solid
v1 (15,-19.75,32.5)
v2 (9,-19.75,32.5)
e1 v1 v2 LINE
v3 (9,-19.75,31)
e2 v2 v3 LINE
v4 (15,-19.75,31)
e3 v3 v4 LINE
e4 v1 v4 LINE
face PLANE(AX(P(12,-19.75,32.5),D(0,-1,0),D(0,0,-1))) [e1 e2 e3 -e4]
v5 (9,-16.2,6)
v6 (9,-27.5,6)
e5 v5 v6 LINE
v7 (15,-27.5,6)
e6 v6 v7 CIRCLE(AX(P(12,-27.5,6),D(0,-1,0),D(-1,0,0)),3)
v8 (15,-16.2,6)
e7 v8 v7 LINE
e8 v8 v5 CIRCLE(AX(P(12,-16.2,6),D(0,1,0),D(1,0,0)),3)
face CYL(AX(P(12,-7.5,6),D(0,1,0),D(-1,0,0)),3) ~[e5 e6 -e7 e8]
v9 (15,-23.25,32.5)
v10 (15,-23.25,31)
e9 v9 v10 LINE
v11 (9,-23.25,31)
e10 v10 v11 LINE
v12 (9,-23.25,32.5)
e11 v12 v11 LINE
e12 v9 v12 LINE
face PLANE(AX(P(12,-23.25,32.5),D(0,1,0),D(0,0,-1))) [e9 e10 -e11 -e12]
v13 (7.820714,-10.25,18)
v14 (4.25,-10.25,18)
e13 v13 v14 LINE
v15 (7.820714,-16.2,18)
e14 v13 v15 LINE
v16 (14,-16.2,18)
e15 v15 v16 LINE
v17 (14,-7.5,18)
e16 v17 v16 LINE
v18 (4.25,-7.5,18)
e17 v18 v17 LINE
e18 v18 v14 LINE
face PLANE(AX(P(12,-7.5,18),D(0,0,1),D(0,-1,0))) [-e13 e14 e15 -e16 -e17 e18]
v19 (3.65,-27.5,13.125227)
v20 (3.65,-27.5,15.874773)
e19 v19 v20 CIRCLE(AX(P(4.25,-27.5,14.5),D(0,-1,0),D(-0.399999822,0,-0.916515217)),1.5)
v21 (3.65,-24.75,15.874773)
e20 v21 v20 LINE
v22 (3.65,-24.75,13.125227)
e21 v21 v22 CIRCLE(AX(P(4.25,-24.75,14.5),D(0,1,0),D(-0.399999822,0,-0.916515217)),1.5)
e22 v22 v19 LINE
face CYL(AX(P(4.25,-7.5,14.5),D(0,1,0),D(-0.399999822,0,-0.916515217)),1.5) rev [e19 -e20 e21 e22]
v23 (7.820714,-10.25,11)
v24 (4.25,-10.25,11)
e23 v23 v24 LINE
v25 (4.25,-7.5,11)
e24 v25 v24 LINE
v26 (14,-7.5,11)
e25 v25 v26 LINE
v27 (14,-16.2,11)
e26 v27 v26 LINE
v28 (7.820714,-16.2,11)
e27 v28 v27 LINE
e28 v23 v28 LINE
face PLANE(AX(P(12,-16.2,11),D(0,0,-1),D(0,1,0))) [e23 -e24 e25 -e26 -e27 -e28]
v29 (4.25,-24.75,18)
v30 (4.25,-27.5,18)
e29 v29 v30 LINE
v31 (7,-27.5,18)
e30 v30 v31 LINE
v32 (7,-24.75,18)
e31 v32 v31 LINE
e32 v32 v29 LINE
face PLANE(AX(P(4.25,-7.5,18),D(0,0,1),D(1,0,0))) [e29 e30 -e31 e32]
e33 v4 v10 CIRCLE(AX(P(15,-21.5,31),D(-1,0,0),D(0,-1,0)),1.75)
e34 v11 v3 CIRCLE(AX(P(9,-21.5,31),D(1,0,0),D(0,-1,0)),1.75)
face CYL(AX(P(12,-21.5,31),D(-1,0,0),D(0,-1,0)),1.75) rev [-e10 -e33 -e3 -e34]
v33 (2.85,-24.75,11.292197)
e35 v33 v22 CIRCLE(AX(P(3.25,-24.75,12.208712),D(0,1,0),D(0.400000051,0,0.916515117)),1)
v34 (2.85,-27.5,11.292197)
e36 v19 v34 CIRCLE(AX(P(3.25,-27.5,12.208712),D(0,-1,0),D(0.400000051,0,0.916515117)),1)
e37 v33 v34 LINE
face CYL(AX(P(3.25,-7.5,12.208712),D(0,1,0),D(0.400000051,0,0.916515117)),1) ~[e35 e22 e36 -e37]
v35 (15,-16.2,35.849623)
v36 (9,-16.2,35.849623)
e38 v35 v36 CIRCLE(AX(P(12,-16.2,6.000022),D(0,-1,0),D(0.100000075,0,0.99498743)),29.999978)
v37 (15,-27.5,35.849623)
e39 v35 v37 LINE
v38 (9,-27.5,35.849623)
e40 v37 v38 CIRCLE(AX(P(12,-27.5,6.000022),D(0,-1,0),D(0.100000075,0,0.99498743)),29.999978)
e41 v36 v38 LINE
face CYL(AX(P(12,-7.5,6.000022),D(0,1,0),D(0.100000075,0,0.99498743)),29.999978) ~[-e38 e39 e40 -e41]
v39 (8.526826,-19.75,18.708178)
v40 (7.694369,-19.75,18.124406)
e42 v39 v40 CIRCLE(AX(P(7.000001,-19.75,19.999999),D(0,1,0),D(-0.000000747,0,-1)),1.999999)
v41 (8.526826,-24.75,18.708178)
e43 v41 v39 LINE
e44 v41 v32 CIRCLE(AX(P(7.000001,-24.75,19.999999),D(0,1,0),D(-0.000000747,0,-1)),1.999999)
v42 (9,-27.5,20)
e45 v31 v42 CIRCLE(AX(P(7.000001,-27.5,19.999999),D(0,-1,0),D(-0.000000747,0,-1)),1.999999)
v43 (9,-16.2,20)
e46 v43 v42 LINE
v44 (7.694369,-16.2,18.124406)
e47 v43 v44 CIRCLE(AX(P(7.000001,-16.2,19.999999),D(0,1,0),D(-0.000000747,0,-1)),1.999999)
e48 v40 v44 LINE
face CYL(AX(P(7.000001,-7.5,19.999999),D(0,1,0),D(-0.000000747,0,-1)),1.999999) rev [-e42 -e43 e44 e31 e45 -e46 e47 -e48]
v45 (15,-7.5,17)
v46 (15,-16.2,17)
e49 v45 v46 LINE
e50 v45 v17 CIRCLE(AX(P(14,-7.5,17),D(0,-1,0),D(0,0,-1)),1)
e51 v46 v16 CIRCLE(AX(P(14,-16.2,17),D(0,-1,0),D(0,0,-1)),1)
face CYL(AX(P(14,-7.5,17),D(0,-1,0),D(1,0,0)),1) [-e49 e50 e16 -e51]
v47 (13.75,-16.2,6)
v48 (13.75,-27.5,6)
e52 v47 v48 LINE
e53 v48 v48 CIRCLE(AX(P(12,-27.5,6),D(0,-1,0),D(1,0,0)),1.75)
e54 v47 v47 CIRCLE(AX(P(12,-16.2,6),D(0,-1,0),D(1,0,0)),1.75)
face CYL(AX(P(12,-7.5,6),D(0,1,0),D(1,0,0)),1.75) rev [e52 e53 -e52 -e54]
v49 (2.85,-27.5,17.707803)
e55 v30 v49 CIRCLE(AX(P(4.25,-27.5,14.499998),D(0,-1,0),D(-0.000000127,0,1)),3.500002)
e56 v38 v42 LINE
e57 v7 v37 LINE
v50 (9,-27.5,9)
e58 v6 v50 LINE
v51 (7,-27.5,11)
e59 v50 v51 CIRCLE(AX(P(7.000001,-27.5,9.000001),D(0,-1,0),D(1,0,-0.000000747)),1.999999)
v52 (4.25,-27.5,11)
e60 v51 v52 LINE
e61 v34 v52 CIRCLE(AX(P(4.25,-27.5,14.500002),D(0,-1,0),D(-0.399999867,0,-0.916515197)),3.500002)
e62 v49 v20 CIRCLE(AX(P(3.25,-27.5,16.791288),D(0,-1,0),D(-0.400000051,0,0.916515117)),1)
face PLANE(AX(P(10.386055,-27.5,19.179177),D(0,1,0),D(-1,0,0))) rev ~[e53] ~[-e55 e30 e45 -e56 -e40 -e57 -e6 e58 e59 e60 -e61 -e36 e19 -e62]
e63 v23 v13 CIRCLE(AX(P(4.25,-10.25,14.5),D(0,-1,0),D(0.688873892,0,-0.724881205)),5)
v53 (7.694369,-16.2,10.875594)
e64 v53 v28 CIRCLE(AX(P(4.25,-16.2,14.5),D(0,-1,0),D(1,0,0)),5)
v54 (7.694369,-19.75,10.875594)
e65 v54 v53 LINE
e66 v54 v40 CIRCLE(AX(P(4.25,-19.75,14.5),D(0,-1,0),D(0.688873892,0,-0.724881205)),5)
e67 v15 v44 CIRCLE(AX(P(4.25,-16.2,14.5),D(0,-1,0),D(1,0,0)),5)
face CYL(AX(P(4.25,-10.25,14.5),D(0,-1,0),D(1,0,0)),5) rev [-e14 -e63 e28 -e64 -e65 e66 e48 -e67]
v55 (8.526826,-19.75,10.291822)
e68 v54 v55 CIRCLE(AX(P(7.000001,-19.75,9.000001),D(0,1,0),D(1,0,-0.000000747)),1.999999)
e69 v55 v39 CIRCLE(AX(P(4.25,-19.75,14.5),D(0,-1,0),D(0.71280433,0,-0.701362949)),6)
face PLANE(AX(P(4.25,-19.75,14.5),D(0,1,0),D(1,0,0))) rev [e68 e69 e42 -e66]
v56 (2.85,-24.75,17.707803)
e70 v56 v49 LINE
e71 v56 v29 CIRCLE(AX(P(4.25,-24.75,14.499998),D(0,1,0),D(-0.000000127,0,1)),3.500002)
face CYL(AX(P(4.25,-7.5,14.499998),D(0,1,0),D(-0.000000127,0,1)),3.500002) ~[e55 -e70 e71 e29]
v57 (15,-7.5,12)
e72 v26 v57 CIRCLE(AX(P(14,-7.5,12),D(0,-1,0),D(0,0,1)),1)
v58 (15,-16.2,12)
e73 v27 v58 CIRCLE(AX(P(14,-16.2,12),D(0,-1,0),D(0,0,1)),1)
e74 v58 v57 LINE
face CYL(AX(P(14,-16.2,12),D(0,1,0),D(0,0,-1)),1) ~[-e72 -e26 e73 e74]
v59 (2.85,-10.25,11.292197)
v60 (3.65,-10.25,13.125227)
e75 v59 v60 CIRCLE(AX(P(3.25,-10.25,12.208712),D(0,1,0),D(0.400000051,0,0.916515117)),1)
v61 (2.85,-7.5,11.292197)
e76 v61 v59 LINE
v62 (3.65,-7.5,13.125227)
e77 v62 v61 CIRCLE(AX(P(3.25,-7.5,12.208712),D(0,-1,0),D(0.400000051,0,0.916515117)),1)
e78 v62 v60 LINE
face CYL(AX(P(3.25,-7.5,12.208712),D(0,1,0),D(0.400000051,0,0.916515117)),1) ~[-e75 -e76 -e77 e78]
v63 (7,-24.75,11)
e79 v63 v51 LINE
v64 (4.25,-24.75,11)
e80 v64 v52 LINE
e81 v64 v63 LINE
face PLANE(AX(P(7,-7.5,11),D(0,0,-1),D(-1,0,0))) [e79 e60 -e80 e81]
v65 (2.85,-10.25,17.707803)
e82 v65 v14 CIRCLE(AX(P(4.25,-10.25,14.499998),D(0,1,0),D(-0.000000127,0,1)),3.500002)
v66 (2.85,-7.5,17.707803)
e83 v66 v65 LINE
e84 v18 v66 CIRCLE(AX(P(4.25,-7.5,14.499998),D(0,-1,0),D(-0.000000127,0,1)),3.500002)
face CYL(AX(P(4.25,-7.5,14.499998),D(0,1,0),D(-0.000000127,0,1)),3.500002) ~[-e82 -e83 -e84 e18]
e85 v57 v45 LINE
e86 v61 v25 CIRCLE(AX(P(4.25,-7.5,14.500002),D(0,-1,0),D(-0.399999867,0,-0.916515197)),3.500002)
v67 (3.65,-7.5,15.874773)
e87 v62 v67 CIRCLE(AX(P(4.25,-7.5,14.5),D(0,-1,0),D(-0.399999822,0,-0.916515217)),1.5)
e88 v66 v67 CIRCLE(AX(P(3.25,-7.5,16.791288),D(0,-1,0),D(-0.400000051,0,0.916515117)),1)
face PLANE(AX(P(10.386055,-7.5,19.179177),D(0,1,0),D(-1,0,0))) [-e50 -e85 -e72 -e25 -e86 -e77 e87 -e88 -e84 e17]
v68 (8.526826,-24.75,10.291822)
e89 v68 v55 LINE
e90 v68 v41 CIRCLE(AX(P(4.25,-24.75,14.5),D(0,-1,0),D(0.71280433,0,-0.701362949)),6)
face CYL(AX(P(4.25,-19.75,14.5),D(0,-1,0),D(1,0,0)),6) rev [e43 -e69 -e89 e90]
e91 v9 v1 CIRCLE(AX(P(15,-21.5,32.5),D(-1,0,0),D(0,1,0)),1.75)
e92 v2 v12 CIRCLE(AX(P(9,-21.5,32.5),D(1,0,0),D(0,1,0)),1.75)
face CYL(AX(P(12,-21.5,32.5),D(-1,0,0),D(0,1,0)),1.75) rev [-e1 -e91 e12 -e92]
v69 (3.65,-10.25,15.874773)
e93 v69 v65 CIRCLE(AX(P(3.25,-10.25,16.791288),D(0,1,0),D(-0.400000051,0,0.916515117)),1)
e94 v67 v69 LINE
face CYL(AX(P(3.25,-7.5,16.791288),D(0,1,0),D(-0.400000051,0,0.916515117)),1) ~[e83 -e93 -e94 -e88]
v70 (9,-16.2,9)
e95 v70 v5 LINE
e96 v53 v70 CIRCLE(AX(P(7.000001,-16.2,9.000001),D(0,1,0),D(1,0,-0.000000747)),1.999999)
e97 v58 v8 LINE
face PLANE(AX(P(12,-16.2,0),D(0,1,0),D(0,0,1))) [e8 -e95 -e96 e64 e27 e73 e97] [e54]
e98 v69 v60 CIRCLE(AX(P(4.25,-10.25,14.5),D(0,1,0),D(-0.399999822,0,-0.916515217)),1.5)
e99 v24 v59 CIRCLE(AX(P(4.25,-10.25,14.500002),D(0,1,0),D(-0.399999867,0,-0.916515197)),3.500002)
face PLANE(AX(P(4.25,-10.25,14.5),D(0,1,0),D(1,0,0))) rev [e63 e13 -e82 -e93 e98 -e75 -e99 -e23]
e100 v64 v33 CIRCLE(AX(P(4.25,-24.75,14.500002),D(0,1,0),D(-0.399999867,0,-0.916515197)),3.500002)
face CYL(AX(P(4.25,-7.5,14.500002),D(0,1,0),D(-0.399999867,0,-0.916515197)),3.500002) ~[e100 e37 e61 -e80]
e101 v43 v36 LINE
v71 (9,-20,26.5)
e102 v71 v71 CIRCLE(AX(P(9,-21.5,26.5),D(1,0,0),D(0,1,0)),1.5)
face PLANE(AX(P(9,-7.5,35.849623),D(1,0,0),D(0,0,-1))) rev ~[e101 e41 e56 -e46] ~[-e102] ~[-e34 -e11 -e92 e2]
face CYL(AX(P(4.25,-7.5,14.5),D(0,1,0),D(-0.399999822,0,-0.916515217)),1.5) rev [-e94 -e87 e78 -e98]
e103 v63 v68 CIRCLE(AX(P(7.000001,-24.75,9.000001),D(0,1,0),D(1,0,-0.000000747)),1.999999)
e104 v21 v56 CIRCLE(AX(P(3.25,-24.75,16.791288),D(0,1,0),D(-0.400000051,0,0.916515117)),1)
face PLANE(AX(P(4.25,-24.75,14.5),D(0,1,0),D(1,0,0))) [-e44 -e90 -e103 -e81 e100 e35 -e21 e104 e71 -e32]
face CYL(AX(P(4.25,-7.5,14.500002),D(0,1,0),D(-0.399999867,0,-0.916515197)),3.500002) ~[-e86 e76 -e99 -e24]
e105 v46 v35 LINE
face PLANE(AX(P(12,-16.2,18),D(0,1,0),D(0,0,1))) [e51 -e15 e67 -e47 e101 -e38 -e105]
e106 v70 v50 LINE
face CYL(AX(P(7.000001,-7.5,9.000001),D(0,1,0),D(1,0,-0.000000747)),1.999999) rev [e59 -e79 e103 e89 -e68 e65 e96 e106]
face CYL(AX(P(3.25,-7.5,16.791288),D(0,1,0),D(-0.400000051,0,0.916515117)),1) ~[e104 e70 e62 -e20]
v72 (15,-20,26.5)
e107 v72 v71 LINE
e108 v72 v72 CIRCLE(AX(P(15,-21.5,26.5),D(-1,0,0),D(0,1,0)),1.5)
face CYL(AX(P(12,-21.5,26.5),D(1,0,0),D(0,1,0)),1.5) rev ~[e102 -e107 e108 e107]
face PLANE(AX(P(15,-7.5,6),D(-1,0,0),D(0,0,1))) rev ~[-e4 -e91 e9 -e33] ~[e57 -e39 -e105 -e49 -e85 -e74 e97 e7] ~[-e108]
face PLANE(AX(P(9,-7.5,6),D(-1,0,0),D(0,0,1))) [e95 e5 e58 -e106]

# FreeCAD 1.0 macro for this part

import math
import FreeCAD as App
import Part
import Sketcher

V = App.Vector
Q = App.Units.Quantity


def edges_at(feature, points):
    """Names of the edges that pass closest to the given points."""
    edges = feature.Shape.Edges
    near = lambda p: min(range(len(edges)), key=lambda i: edges[i].distToShape(Part.Vertex(*p))[0])
    return sorted({f"Edge{near(p) + 1}" for p in points})


def add_polygon(sketch, points):
    """Adds a closed chain of lines whose ends are joined by coincident constraints."""
    first, n = sketch.GeometryCount, len(points)
    for a, b in zip(points, points[1:] + points[:1]):
        sketch.addGeometry(Part.LineSegment(App.Vector(*a, 0), App.Vector(*b, 0)), False)
    for i in range(n):
        sketch.addConstraint(Sketcher.Constraint("Coincident", first + i, 2, first + (i + 1) % n, 1))

doc = App.newDocument("Part")
params = doc.addObject("Spreadsheet::Sheet", "Params")
for row, (alias, value) in enumerate([
    ("sketch1_radius", "3 mm"),
    ("sketch1_radius2", "1.999999 mm"),
    ("sketch1_radius3", "1 mm"),
    ("sketch1_diameter", "3.5 mm"),
    ("sketch1_radius4", "1.5 mm"),
    ("pad1_length", "20 mm"),
    ("sketch2_width", "5 mm"),
    ("sketch2_width2", "6 mm"),
    ("sketch2_height", "14.5 mm"),
    ("groove_angle", "360 deg"),
    ("sketch3_height", "24 mm"),
    ("sketch3_height2", "7 mm"),
    ("sketch3_height3", "11 mm"),
    ("sketch3_width", "16.2 mm"),
    ("sketch3_width2", "8.7 mm"),
    ("sketch4_diameter", "3 mm"),
    ("sketch4_radius", "1.75 mm"),
    ("sketch4_height", "1.5 mm"),
    ("fillet_radius", "1 mm"),
], start=1):
    params.set(f"A{row}", alias)
    params.set(f"B{row}", "=" + value)
    params.setAlias(f"B{row}", alias)

body = doc.addObject("PartDesign::Body", "Body")

sketch1 = body.newObject("Sketcher::SketchObject", "Sketch")
sketch1.AttachmentSupport = (doc.getObject("XZ_Plane"), [""])
sketch1.MapMode = "FlatFace"
sketch1.AttachmentOffset = App.Placement(V(0, 0, 7.5), App.Rotation())
sketch1.addGeometry([
    Part.LineSegment(V(-3, 3, 0), V(-3, 0, 0)),
    Part.ArcOfCircle(Part.Circle(V(0, 0, 0), V(0, 0, 1), 3), math.radians(180), math.radians(360)),
    Part.LineSegment(V(3, 0, 0), V(3, 29.8, 0)),
    Part.ArcOfCircle(Part.Circle(V(0, 0, 0), V(0, 0, 1), 30), math.radians(84.26), math.radians(95.74)),
    Part.LineSegment(V(-3, 29.8, 0), V(-3, 14, 0)),
    Part.ArcOfCircle(Part.Circle(V(-5, 14, 0), V(0, 0, 1), 2), math.radians(-90), math.radians(0)),
    Part.LineSegment(V(-5, 12, 0), V(-7.8, 12, 0)),
    Part.ArcOfCircle(Part.Circle(V(-7.7, 8.5, 0), V(0, 0, 1), 3.5), math.radians(90), math.radians(114)),
    Part.ArcOfCircle(Part.Circle(V(-8.8, 10.8, 0), V(0, 0, 1), 1), math.radians(114), math.radians(294)),
    Part.ArcOfCircle(Part.Circle(V(-7.8, 8.5, 0), V(0, 0, 1), 1.5), math.radians(-114), math.radians(114)),
    Part.ArcOfCircle(Part.Circle(V(-8.8, 6.2, 0), V(0, 0, 1), 1), math.radians(66), math.radians(246)),
    Part.ArcOfCircle(Part.Circle(V(-7.7, 8.5, 0), V(0, 0, 1), 3.5), math.radians(-114), math.radians(-90)),
    Part.LineSegment(V(-7.8, 5, 0), V(-5, 5, 0)),
    Part.ArcOfCircle(Part.Circle(V(-5, 3, 0), V(0, 0, 1), 2), math.radians(0), math.radians(90)),
    Part.Circle(V(0, 0, 0), V(0, 0, 1), 1.8),
], False)
sketch1.addConstraint([
    Sketcher.Constraint("Tangent", 0, 2, 1, 1),
    Sketcher.Constraint("Tangent", 1, 2, 2, 1),
    Sketcher.Constraint("Coincident", 2, 2, 3, 1),
    Sketcher.Constraint("Coincident", 3, 2, 4, 1),
    Sketcher.Constraint("Tangent", 4, 2, 5, 2),
    Sketcher.Constraint("Tangent", 5, 1, 6, 1),
    Sketcher.Constraint("Tangent", 6, 2, 7, 1),
    Sketcher.Constraint("Tangent", 7, 2, 8, 1),
    Sketcher.Constraint("Tangent", 8, 2, 9, 2),
    Sketcher.Constraint("Tangent", 9, 1, 10, 1),
    Sketcher.Constraint("Tangent", 10, 2, 11, 1),
    Sketcher.Constraint("Tangent", 11, 2, 12, 1),
    Sketcher.Constraint("Tangent", 12, 2, 13, 2),
    Sketcher.Constraint("Tangent", 13, 1, 0, 1),
    Sketcher.Constraint("Vertical", 0),
    Sketcher.Constraint("Vertical", 2),
    Sketcher.Constraint("Vertical", 4),
    Sketcher.Constraint("Horizontal", 6),
    Sketcher.Constraint("Horizontal", 12),
    Sketcher.Constraint("Coincident", 1, 3, -1, 1),
    Sketcher.Constraint("Coincident", 14, 3, -1, 1),
    Sketcher.Constraint("Coincident", 9, 3, 7, 3),
    Sketcher.Constraint("Coincident", 11, 3, 7, 3),
    Sketcher.Constraint("Equal", 8, 10),
    Sketcher.Constraint("Equal", 5, 13),
    Sketcher.Constraint("Symmetric", 2, 2, 3, 2, -2),
    Sketcher.Constraint("Vertical", 8, 3, 10, 3),
    Sketcher.Constraint("Radius", 1, Q("3 mm")),
    Sketcher.Constraint("Radius", 5, Q("1.999999 mm")),
    Sketcher.Constraint("Radius", 8, Q("1 mm")),
    Sketcher.Constraint("Diameter", 14, Q("3.5 mm")),
    Sketcher.Constraint("Radius", 9, Q("1.5 mm")),
    Sketcher.Constraint("DistanceY", 0, 2, 0, 1, Q("3 mm")),
    Sketcher.Constraint("DistanceX", 8, 3, 7, 3, Q("1 mm")),
    Sketcher.Constraint("DistanceX", 6, 2, 6, 1, Q("2.75 mm")),
    Sketcher.Constraint("Radius", 3, Q("29.999978 mm")),
    Sketcher.Constraint("DistanceY", 2, 1, 2, 2, Q("29.849623 mm")),
])
sketch1.setExpression("Constraints[27]", "Params.sketch1_radius")
sketch1.setExpression("Constraints[28]", "Params.sketch1_radius2")
sketch1.setExpression("Constraints[29]", "Params.sketch1_radius3")
sketch1.setExpression("Constraints[30]", "Params.sketch1_diameter")
sketch1.setExpression("Constraints[31]", "Params.sketch1_radius4")
pad1 = body.newObject("PartDesign::Pad", "Pad")
pad1.Profile = sketch1
pad1.setExpression("Length", "Params.pad1_length")

sketch2 = body.newObject("Sketcher::SketchObject", "Sketch001")
sketch2.AttachmentSupport = (doc.getObject("XY_Plane"), [""])
sketch2.MapMode = "FlatFace"
sketch2.AttachmentOffset = App.Placement(V(0, 0, 8.5), App.Rotation())
add_polygon(sketch2, [(-2.8, -10.2), (-7.8, -10.2), (-7.8, -24.8), (-1.8, -24.8), (-1.8, -19.8), (-2.8, -19.8)])
sketch2.addGeometry(Part.LineSegment(V(-7.8, -24.8, 0), V(-7.8, -10.2, 0)), True)
sketch2.addConstraint([
    Sketcher.Constraint("Horizontal", 0),
    Sketcher.Constraint("Vertical", 1),
    Sketcher.Constraint("Horizontal", 2),
    Sketcher.Constraint("Vertical", 3),
    Sketcher.Constraint("Horizontal", 4),
    Sketcher.Constraint("Vertical", 5),
    Sketcher.Constraint("Vertical", 6),
    Sketcher.Constraint("Coincident", 6, 1, 1, 2),
    Sketcher.Constraint("Horizontal", 5, 2, 6, 2),
    Sketcher.Constraint("Equal", 0, 3),
    Sketcher.Constraint("DistanceX", 0, 2, 0, 1, Q("5 mm")),
    Sketcher.Constraint("DistanceX", 2, 1, 2, 2, Q("6 mm")),
    Sketcher.Constraint("DistanceY", 1, 2, 1, 1, Q("14.5 mm")),
    Sketcher.Constraint("DistanceX", 0, 2, -1, 1, Q("7.75 mm")),
    Sketcher.Constraint("DistanceY", 0, 2, -1, 1, Q("10.25 mm")),
])
sketch2.setExpression("Constraints[16]", "Params.sketch2_width")
sketch2.setExpression("Constraints[17]", "Params.sketch2_width2")
sketch2.setExpression("Constraints[18]", "Params.sketch2_height")
groove = body.newObject("PartDesign::Groove", "Groove")
groove.Profile = sketch2
groove.ReferenceAxis = (sketch2, ["Axis0"])
groove.setExpression("Angle", "Params.groove_angle")

sketch3 = body.newObject("Sketcher::SketchObject", "Sketch002")
sketch3.AttachmentSupport = (doc.getObject("YZ_Plane"), [""])
sketch3.MapMode = "FlatFace"
add_polygon(sketch3, [(0, 36), (-16, 36), (-16, 12), (-8, 12), (-8, 5), (-16, 5), (-16, -6), (0, -6)])
sketch3.addConstraint([
    Sketcher.Constraint("Horizontal", 0),
    Sketcher.Constraint("Vertical", 1),
    Sketcher.Constraint("Horizontal", 2),
    Sketcher.Constraint("Vertical", 3),
    Sketcher.Constraint("Horizontal", 4),
    Sketcher.Constraint("Vertical", 5),
    Sketcher.Constraint("Horizontal", 6),
    Sketcher.Constraint("Vertical", 7),
    Sketcher.Constraint("PointOnObject", 6, 2, -2),
    Sketcher.Constraint("Vertical", 1, 2, 4, 2),
    Sketcher.Constraint("DistanceY", 1, 2, 1, 1, Q("24 mm")),
    Sketcher.Constraint("DistanceY", 3, 2, 3, 1, Q("7 mm")),
    Sketcher.Constraint("DistanceY", 5, 2, 5, 1, Q("11 mm")),
    Sketcher.Constraint("DistanceX", 0, 2, 0, 1, Q("16.2 mm")),
    Sketcher.Constraint("DistanceX", 2, 1, 2, 2, Q("8.7 mm")),
    Sketcher.Constraint("DistanceY", -1, 1, 0, 2, Q("36 mm")),
])
sketch3.setExpression("Constraints[18]", "Params.sketch3_height")
sketch3.setExpression("Constraints[19]", "Params.sketch3_height2")
sketch3.setExpression("Constraints[20]", "Params.sketch3_height3")
sketch3.setExpression("Constraints[21]", "Params.sketch3_width")
sketch3.setExpression("Constraints[22]", "Params.sketch3_width2")
pocket1 = body.newObject("PartDesign::Pocket", "Pocket")
pocket1.Profile = sketch3
pocket1.Type = "ThroughAll"
pocket1.Midplane = True

sketch4 = body.newObject("Sketcher::SketchObject", "Sketch003")
sketch4.AttachmentSupport = (doc.getObject("YZ_Plane"), [""])
sketch4.MapMode = "FlatFace"
sketch4.addGeometry([
    Part.Circle(V(-21.5, 20.5, 0), V(0, 0, 1), 1.5),
    Part.ArcOfCircle(Part.Circle(V(-21.5, 26.5, 0), V(0, 0, 1), 1.8), math.radians(0), math.radians(180)),
    Part.LineSegment(V(-23.2, 26.5, 0), V(-23.2, 25, 0)),
    Part.ArcOfCircle(Part.Circle(V(-21.5, 25, 0), V(0, 0, 1), 1.8), math.radians(180), math.radians(360)),
    Part.LineSegment(V(-19.8, 25, 0), V(-19.8, 26.5, 0)),
], False)
sketch4.addConstraint([
    Sketcher.Constraint("Tangent", 1, 2, 2, 1),
    Sketcher.Constraint("Tangent", 2, 2, 3, 1),
    Sketcher.Constraint("Tangent", 3, 2, 4, 1),
    Sketcher.Constraint("Tangent", 4, 2, 1, 1),
    Sketcher.Constraint("Vertical", 2),
    Sketcher.Constraint("Vertical", 4),
    Sketcher.Constraint("Vertical", 0, 3, 1, 3),
    Sketcher.Constraint("Diameter", 0, Q("3 mm")),
    Sketcher.Constraint("Radius", 1, Q("1.75 mm")),
    Sketcher.Constraint("DistanceY", 2, 2, 2, 1, Q("1.5 mm")),
    Sketcher.Constraint("DistanceY", -1, 1, 3, 3, Q("25 mm")),
    Sketcher.Constraint("DistanceY", 0, 3, 1, 3, Q("6 mm")),
    Sketcher.Constraint("DistanceX", 0, 3, -1, 1, Q("21.5 mm")),
])
sketch4.setExpression("Constraints[7]", "Params.sketch4_diameter")
sketch4.setExpression("Constraints[8]", "Params.sketch4_radius")
sketch4.setExpression("Constraints[9]", "Params.sketch4_height")
pocket2 = body.newObject("PartDesign::Pocket", "Pocket001")
pocket2.Profile = sketch4
pocket2.Type = "ThroughAll"
pocket2.Midplane = True
doc.recompute()

fillet = body.newObject("PartDesign::Fillet", "Fillet")
fillet.Base = (pocket2, edges_at(pocket2, [(3, -11.85, 12), (3, -11.85, 5)]))
fillet.setExpression("Radius", "Params.fillet_radius")
body2 = doc.addObject("PartDesign::Body", "Body001")
doc.recompute()

body.Placement = App.Placement(V(12, 0, 6), App.Rotation(V(0, 0, 1), 0))
boolean = body2.newObject("PartDesign::Boolean", "Boolean")
boolean.Type = "Fuse"
boolean.addObjects([body])

doc.recompute()
